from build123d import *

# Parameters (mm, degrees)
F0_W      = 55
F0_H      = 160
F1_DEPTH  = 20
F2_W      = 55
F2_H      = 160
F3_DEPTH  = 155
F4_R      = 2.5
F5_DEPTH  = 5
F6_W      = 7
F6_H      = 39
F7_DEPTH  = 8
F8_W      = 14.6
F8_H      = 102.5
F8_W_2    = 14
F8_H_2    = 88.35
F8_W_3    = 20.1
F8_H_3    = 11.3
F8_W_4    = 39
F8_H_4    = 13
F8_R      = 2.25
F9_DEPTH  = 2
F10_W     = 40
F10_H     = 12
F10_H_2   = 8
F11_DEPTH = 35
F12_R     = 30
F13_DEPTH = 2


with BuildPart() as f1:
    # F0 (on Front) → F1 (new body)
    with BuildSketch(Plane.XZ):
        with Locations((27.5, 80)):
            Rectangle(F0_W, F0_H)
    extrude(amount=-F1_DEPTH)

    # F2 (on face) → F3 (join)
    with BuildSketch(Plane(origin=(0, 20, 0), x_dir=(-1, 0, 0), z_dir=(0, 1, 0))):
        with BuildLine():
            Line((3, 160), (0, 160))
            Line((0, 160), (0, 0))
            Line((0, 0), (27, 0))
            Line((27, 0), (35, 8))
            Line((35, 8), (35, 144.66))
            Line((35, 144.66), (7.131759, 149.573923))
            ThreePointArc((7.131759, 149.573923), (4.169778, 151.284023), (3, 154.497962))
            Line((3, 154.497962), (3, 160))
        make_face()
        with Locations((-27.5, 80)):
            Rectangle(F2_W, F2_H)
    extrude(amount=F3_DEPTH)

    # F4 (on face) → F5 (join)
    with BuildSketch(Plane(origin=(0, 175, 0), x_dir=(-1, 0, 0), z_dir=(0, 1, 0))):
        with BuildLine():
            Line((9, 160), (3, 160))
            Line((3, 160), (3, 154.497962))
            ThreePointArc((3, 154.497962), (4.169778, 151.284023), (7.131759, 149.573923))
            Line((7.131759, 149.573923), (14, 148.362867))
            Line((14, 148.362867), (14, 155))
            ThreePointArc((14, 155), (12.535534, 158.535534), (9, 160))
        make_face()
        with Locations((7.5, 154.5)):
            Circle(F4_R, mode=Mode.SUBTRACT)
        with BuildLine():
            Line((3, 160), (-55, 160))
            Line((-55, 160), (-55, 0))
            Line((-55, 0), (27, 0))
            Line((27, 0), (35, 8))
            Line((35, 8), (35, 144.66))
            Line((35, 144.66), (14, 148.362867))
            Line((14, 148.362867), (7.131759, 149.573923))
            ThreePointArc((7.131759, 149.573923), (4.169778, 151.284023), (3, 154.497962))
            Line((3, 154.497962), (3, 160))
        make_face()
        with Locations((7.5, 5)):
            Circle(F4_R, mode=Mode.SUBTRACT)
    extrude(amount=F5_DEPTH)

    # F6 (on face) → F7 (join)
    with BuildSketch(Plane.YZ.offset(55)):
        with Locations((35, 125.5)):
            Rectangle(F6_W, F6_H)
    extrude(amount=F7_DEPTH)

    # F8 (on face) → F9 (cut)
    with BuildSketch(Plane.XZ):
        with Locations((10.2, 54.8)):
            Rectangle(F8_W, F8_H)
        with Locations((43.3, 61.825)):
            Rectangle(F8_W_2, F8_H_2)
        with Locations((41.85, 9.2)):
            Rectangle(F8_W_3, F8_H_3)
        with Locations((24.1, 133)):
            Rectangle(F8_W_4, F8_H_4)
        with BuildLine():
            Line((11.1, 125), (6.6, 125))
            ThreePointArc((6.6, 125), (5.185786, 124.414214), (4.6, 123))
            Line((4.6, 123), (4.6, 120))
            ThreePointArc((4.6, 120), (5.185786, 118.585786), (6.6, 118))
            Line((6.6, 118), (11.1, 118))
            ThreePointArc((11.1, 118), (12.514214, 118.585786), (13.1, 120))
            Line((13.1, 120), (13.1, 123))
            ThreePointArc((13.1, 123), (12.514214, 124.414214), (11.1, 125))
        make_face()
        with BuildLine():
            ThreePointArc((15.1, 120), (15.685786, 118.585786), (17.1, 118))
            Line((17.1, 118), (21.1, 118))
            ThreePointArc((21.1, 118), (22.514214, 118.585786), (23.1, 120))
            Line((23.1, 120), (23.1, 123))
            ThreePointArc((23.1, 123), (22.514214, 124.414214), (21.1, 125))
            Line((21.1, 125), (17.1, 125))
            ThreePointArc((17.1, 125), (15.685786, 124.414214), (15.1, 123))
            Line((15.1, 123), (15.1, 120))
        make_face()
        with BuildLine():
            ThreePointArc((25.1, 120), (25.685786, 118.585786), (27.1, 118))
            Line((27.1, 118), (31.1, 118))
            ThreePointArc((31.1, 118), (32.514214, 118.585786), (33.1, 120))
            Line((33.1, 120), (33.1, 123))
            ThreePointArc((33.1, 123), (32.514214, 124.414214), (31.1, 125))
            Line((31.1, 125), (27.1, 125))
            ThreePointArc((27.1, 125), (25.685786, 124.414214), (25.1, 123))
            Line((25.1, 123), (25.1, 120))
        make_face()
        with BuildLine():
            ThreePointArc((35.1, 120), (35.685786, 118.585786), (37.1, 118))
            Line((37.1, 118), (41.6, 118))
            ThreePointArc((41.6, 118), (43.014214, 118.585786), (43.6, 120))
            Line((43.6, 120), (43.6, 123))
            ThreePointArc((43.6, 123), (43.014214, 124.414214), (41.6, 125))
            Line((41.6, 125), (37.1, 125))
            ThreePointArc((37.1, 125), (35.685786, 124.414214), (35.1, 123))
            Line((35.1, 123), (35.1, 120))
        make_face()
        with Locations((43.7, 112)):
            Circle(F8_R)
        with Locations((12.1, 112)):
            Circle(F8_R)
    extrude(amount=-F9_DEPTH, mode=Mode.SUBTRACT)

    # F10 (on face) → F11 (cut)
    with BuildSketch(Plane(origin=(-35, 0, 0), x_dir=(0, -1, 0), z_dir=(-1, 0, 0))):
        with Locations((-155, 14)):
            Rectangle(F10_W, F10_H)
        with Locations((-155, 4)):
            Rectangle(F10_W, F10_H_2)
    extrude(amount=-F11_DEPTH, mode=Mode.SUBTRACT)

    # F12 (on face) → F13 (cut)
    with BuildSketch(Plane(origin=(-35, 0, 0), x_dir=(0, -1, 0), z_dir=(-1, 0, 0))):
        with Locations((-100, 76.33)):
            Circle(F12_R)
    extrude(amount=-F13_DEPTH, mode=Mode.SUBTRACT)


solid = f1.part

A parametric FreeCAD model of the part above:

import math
import FreeCAD as App
import Part
import Sketcher
Q = App.Units.Quantity

doc = App.newDocument("Part")
body = doc.addObject("PartDesign::Body", "Body")

sketch1 = body.newObject("Sketcher::SketchObject", "Sketch")
sketch1.AttachmentSupport = (doc.getObject("XZ_Plane"), [""])
sketch1.MapMode = "FlatFace"
sketch1.addGeometry(Part.LineSegment(App.Vector(0, 160, 0), App.Vector(0, 0, 0)), False)
sketch1.addGeometry(Part.LineSegment(App.Vector(0, 0, 0), App.Vector(55, 0, 0)), False)
sketch1.addGeometry(Part.LineSegment(App.Vector(55, 0, 0), App.Vector(55, 160, 0)), False)
sketch1.addGeometry(Part.LineSegment(App.Vector(55, 160, 0), App.Vector(0, 160, 0)), False)
sketch1.addConstraint(Sketcher.Constraint("Coincident", 0, 2, 1, 1))
sketch1.addConstraint(Sketcher.Constraint("Coincident", 1, 2, 2, 1))
sketch1.addConstraint(Sketcher.Constraint("Coincident", 2, 2, 3, 1))
sketch1.addConstraint(Sketcher.Constraint("Coincident", 3, 2, 0, 1))
sketch1.addConstraint(Sketcher.Constraint("Vertical", 0))
sketch1.addConstraint(Sketcher.Constraint("Horizontal", 1))
sketch1.addConstraint(Sketcher.Constraint("Vertical", 2))
sketch1.addConstraint(Sketcher.Constraint("Horizontal", 3))
sketch1.addConstraint(Sketcher.Constraint("Coincident", 0, 2, -1, 1))
sketch1.addConstraint(Sketcher.Constraint("DistanceX", 1, 1, 1, 2, Q("55 mm")))
sketch1.addConstraint(Sketcher.Constraint("DistanceY", 0, 2, 0, 1, Q("160 mm")))
pad1 = body.newObject("PartDesign::Pad", "Pad")
pad1.Profile = sketch1
pad1.Length = 20
pad1.Reversed = True

sketch2 = body.newObject("Sketcher::SketchObject", "Sketch001")
sketch2.AttachmentSupport = (doc.getObject("XZ_Plane"), [""])
sketch2.MapMode = "FlatFace"
sketch2.AttachmentOffset = App.Placement(App.Vector(0, 0, -20), App.Rotation())
sketch2.addGeometry(Part.LineSegment(App.Vector(-3, 160, 0), App.Vector(55, 160, 0)), False)
sketch2.addGeometry(Part.LineSegment(App.Vector(55, 160, 0), App.Vector(55, 0, 0)), False)
sketch2.addGeometry(Part.LineSegment(App.Vector(55, 0, 0), App.Vector(-27, 0, 0)), False)
sketch2.addGeometry(Part.LineSegment(App.Vector(-27, 0, 0), App.Vector(-35, 8, 0)), False)
sketch2.addGeometry(Part.LineSegment(App.Vector(-35, 8, 0), App.Vector(-35, 144.7, 0)), False)
sketch2.addGeometry(Part.LineSegment(App.Vector(-35, 144.7, 0), App.Vector(-7.1, 149.6, 0)), False)
sketch2.addGeometry(Part.ArcOfCircle(Part.Circle(App.Vector(-8, 154.5, 0), App.Vector(0, 0, 1), 5), math.radians(-80), math.radians(0)), False)
sketch2.addGeometry(Part.LineSegment(App.Vector(-3, 154.5, 0), App.Vector(-3, 160, 0)), False)
sketch2.addConstraint(Sketcher.Constraint("Coincident", 0, 2, 1, 1))
sketch2.addConstraint(Sketcher.Constraint("Coincident", 1, 2, 2, 1))
sketch2.addConstraint(Sketcher.Constraint("Coincident", 2, 2, 3, 1))
sketch2.addConstraint(Sketcher.Constraint("Coincident", 3, 2, 4, 1))
sketch2.addConstraint(Sketcher.Constraint("Coincident", 4, 2, 5, 1))
sketch2.addConstraint(Sketcher.Constraint("Tangent", 5, 2, 6, 1))
sketch2.addConstraint(Sketcher.Constraint("Tangent", 6, 2, 7, 1))
sketch2.addConstraint(Sketcher.Constraint("Coincident", 7, 2, 0, 1))
sketch2.addConstraint(Sketcher.Constraint("Horizontal", 0))
sketch2.addConstraint(Sketcher.Constraint("Vertical", 1))
sketch2.addConstraint(Sketcher.Constraint("Horizontal", 2))
sketch2.addConstraint(Sketcher.Constraint("Vertical", 4))
sketch2.addConstraint(Sketcher.Constraint("Vertical", 7))
sketch2.addConstraint(Sketcher.Constraint("PointOnObject", 1, 2, -1))
sketch2.addConstraint(Sketcher.Constraint("Radius", 6, Q("4.999999 mm")))
sketch2.addConstraint(Sketcher.Constraint("DistanceX", 0, 1, 0, 2, Q("58 mm")))
sketch2.addConstraint(Sketcher.Constraint("DistanceX", 2, 2, 2, 1, Q("82 mm")))
sketch2.addConstraint(Sketcher.Constraint("DistanceY", 1, 2, 1, 1, Q("160 mm")))
sketch2.addConstraint(Sketcher.Constraint("Angle", 3, Q("135 deg")))
sketch2.addConstraint(Sketcher.Constraint("Angle", 5, Q("10 deg")))
sketch2.addConstraint(Sketcher.Constraint("DistanceX", 6, 3, -1, 1, Q("7.999999 mm")))
sketch2.addConstraint(Sketcher.Constraint("DistanceX", 3, 2, -1, 1, Q("35 mm")))
sketch2.addConstraint(Sketcher.Constraint("DistanceY", 4, 1, 4, 2, Q("136.66 mm")))
pad2 = body.newObject("PartDesign::Pad", "Pad001")
pad2.Profile = sketch2
pad2.Length = 155
pad2.Reversed = True

sketch3 = body.newObject("Sketcher::SketchObject", "Sketch002")
sketch3.AttachmentSupport = (doc.getObject("XZ_Plane"), [""])
sketch3.MapMode = "FlatFace"
sketch3.AttachmentOffset = App.Placement(App.Vector(0, 0, -175), App.Rotation())
sketch3.addGeometry(Part.LineSegment(App.Vector(-9, 160, 0), App.Vector(55, 160, 0)), False)
sketch3.addGeometry(Part.LineSegment(App.Vector(55, 160, 0), App.Vector(55, 0, 0)), False)
sketch3.addGeometry(Part.LineSegment(App.Vector(55, 0, 0), App.Vector(-27, 0, 0)), False)
sketch3.addGeometry(Part.LineSegment(App.Vector(-27, 0, 0), App.Vector(-35, 8, 0)), False)
sketch3.addGeometry(Part.LineSegment(App.Vector(-35, 8, 0), App.Vector(-35, 144.7, 0)), False)
sketch3.addGeometry(Part.LineSegment(App.Vector(-35, 144.7, 0), App.Vector(-14, 148.4, 0)), False)
sketch3.addGeometry(Part.LineSegment(App.Vector(-14, 148.4, 0), App.Vector(-14, 155, 0)), False)
sketch3.addGeometry(Part.ArcOfCircle(Part.Circle(App.Vector(-9, 155, 0), App.Vector(0, 0, 1), 5), math.radians(90), math.radians(180)), False)
sketch3.addGeometry(Part.Circle(App.Vector(-7.5, 5, 0), App.Vector(0, 0, 1), 2.5), False)
sketch3.addGeometry(Part.Circle(App.Vector(-7.5, 154.5, 0), App.Vector(0, 0, 1), 2.5), False)
sketch3.addConstraint(Sketcher.Constraint("Coincident", 0, 2, 1, 1))
sketch3.addConstraint(Sketcher.Constraint("Coincident", 1, 2, 2, 1))
sketch3.addConstraint(Sketcher.Constraint("Coincident", 2, 2, 3, 1))
sketch3.addConstraint(Sketcher.Constraint("Coincident", 3, 2, 4, 1))
sketch3.addConstraint(Sketcher.Constraint("Coincident", 4, 2, 5, 1))
sketch3.addConstraint(Sketcher.Constraint("Coincident", 5, 2, 6, 1))
sketch3.addConstraint(Sketcher.Constraint("Tangent", 6, 2, 7, 2))
sketch3.addConstraint(Sketcher.Constraint("Tangent", 7, 1, 0, 1))
sketch3.addConstraint(Sketcher.Constraint("Horizontal", 0))
sketch3.addConstraint(Sketcher.Constraint("Vertical", 1))
sketch3.addConstraint(Sketcher.Constraint("Horizontal", 2))
sketch3.addConstraint(Sketcher.Constraint("Vertical", 4))
sketch3.addConstraint(Sketcher.Constraint("Vertical", 6))
sketch3.addConstraint(Sketcher.Constraint("Equal", 8, 9))
sketch3.addConstraint(Sketcher.Constraint("PointOnObject", 1, 2, -1))
sketch3.addConstraint(Sketcher.Constraint("Vertical", 8, 3, 9, 3))
sketch3.addConstraint(Sketcher.Constraint("Diameter", 8, Q("5 mm")))
sketch3.addConstraint(Sketcher.Constraint("Radius", 7, Q("5 mm")))
sketch3.addConstraint(Sketcher.Constraint("DistanceX", 0, 1, 0, 2, Q("64 mm")))
sketch3.addConstraint(Sketcher.Constraint("DistanceX", 2, 2, 2, 1, Q("82 mm")))
sketch3.addConstraint(Sketcher.Constraint("DistanceY", 1, 2, 1, 1, Q("160 mm")))
sketch3.addConstraint(Sketcher.Constraint("Angle", 3, Q("135 deg")))
sketch3.addConstraint(Sketcher.Constraint("Angle", 5, Q("10.000001 deg")))
sketch3.addConstraint(Sketcher.Constraint("DistanceX", 7, 3, -1, 1, Q("9 mm")))
sketch3.addConstraint(Sketcher.Constraint("DistanceY", -1, 1, 8, 3, Q("5 mm")))
sketch3.addConstraint(Sketcher.Constraint("DistanceX", 3, 2, -1, 1, Q("35 mm")))
sketch3.addConstraint(Sketcher.Constraint("DistanceY", 4, 1, 4, 2, Q("136.66 mm")))
sketch3.addConstraint(Sketcher.Constraint("DistanceX", 8, 3, -1, 1, Q("7.5 mm")))
sketch3.addConstraint(Sketcher.Constraint("DistanceY", -1, 1, 9, 3, Q("154.5 mm")))
pad3 = body.newObject("PartDesign::Pad", "Pad002")
pad3.Profile = sketch3
pad3.Length = 5
pad3.Reversed = True

sketch4 = body.newObject("Sketcher::SketchObject", "Sketch003")
sketch4.AttachmentSupport = (doc.getObject("YZ_Plane"), [""])
sketch4.MapMode = "FlatFace"
sketch4.AttachmentOffset = App.Placement(App.Vector(0, 0, 55), App.Rotation())
sketch4.addGeometry(Part.LineSegment(App.Vector(32, 145, 0), App.Vector(32, 106, 0)), False)
sketch4.addGeometry(Part.LineSegment(App.Vector(32, 106, 0), App.Vector(38, 106, 0)), False)
sketch4.addGeometry(Part.LineSegment(App.Vector(38, 106, 0), App.Vector(38, 145, 0)), False)
sketch4.addGeometry(Part.LineSegment(App.Vector(38, 145, 0), App.Vector(32, 145, 0)), False)
sketch4.addConstraint(Sketcher.Constraint("Coincident", 0, 2, 1, 1))
sketch4.addConstraint(Sketcher.Constraint("Coincident", 1, 2, 2, 1))
sketch4.addConstraint(Sketcher.Constraint("Coincident", 2, 2, 3, 1))
sketch4.addConstraint(Sketcher.Constraint("Coincident", 3, 2, 0, 1))
sketch4.addConstraint(Sketcher.Constraint("Vertical", 0))
sketch4.addConstraint(Sketcher.Constraint("Horizontal", 1))
sketch4.addConstraint(Sketcher.Constraint("Vertical", 2))
sketch4.addConstraint(Sketcher.Constraint("Horizontal", 3))
sketch4.addConstraint(Sketcher.Constraint("DistanceX", 1, 1, 1, 2, Q("7 mm")))
sketch4.addConstraint(Sketcher.Constraint("DistanceY", 0, 2, 0, 1, Q("39 mm")))
sketch4.addConstraint(Sketcher.Constraint("DistanceY", -1, 1, 0, 2, Q("106 mm")))
sketch4.addConstraint(Sketcher.Constraint("DistanceX", -1, 1, 0, 2, Q("31.5 mm")))
pad4 = body.newObject("PartDesign::Pad", "Pad003")
pad4.Profile = sketch4
pad4.Length = 8

sketch5 = body.newObject("Sketcher::SketchObject", "Sketch004")
sketch5.AttachmentSupport = (doc.getObject("XZ_Plane"), [""])
sketch5.MapMode = "FlatFace"
sketch5.addGeometry(Part.LineSegment(App.Vector(2.9, 106, 0), App.Vector(2.9, 3.5, 0)), False)
sketch5.addGeometry(Part.LineSegment(App.Vector(2.9, 3.5, 0), App.Vector(17.5, 3.5, 0)), False)
sketch5.addGeometry(Part.LineSegment(App.Vector(17.5, 3.5, 0), App.Vector(17.5, 106, 0)), False)
sketch5.addGeometry(Part.LineSegment(App.Vector(17.5, 106, 0), App.Vector(2.9, 106, 0)), False)
sketch5.addGeometry(Part.LineSegment(App.Vector(36.3, 106, 0), App.Vector(36.3, 17.6, 0)), False)
sketch5.addGeometry(Part.LineSegment(App.Vector(36.3, 17.6, 0), App.Vector(50.3, 17.6, 0)), False)
sketch5.addGeometry(Part.LineSegment(App.Vector(50.3, 17.6, 0), App.Vector(50.3, 106, 0)), False)
sketch5.addGeometry(Part.LineSegment(App.Vector(50.3, 106, 0), App.Vector(36.3, 106, 0)), False)
sketch5.addGeometry(Part.LineSegment(App.Vector(31.8, 14.8, 0), App.Vector(31.8, 3.5, 0)), False)
sketch5.addGeometry(Part.LineSegment(App.Vector(31.8, 3.5, 0), App.Vector(51.9, 3.5, 0)), False)
sketch5.addGeometry(Part.LineSegment(App.Vector(51.9, 3.5, 0), App.Vector(51.9, 14.8, 0)), False)
sketch5.addGeometry(Part.LineSegment(App.Vector(51.9, 14.8, 0), App.Vector(31.8, 14.8, 0)), False)
sketch5.addGeometry(Part.LineSegment(App.Vector(4.6, 139.5, 0), App.Vector(4.6, 126.5, 0)), False)
sketch5.addGeometry(Part.LineSegment(App.Vector(4.6, 126.5, 0), App.Vector(43.6, 126.5, 0)), False)
sketch5.addGeometry(Part.LineSegment(App.Vector(43.6, 126.5, 0), App.Vector(43.6, 139.5, 0)), False)
sketch5.addGeometry(Part.LineSegment(App.Vector(43.6, 139.5, 0), App.Vector(4.6, 139.5, 0)), False)
sketch5.addGeometry(Part.LineSegment(App.Vector(11.1, 125, 0), App.Vector(6.6, 125, 0)), False)
sketch5.addGeometry(Part.ArcOfCircle(Part.Circle(App.Vector(6.6, 123, 0), App.Vector(0, 0, 1), 2), math.radians(90), math.radians(180)), False)
sketch5.addGeometry(Part.LineSegment(App.Vector(4.6, 123, 0), App.Vector(4.6, 120, 0)), False)
sketch5.addGeometry(Part.ArcOfCircle(Part.Circle(App.Vector(6.6, 120, 0), App.Vector(0, 0, 1), 2), math.radians(180), math.radians(270)), False)
sketch5.addGeometry(Part.LineSegment(App.Vector(6.6, 118, 0), App.Vector(11.1, 118, 0)), False)
sketch5.addGeometry(Part.ArcOfCircle(Part.Circle(App.Vector(11.1, 120, 0), App.Vector(0, 0, 1), 2), math.radians(-90), math.radians(0)), False)
sketch5.addGeometry(Part.LineSegment(App.Vector(13.1, 120, 0), App.Vector(13.1, 123, 0)), False)
sketch5.addGeometry(Part.ArcOfCircle(Part.Circle(App.Vector(11.1, 123, 0), App.Vector(0, 0, 1), 2), math.radians(0), math.radians(90)), False)
sketch5.addGeometry(Part.ArcOfCircle(Part.Circle(App.Vector(17.1, 120, 0), App.Vector(0, 0, 1), 2), math.radians(180), math.radians(270)), False)
sketch5.addGeometry(Part.LineSegment(App.Vector(17.1, 118, 0), App.Vector(21.1, 118, 0)), False)
sketch5.addGeometry(Part.ArcOfCircle(Part.Circle(App.Vector(21.1, 120, 0), App.Vector(0, 0, 1), 2), math.radians(-90), math.radians(0)), False)
sketch5.addGeometry(Part.LineSegment(App.Vector(23.1, 120, 0), App.Vector(23.1, 123, 0)), False)
sketch5.addGeometry(Part.ArcOfCircle(Part.Circle(App.Vector(21.1, 123, 0), App.Vector(0, 0, 1), 2), math.radians(0), math.radians(90)), False)
sketch5.addGeometry(Part.LineSegment(App.Vector(21.1, 125, 0), App.Vector(17.1, 125, 0)), False)
sketch5.addGeometry(Part.ArcOfCircle(Part.Circle(App.Vector(17.1, 123, 0), App.Vector(0, 0, 1), 2), math.radians(90), math.radians(180)), False)
sketch5.addGeometry(Part.LineSegment(App.Vector(15.1, 123, 0), App.Vector(15.1, 120, 0)), False)
sketch5.addGeometry(Part.ArcOfCircle(Part.Circle(App.Vector(27.1, 120, 0), App.Vector(0, 0, 1), 2), math.radians(180), math.radians(270)), False)
sketch5.addGeometry(Part.LineSegment(App.Vector(27.1, 118, 0), App.Vector(31.1, 118, 0)), False)
sketch5.addGeometry(Part.ArcOfCircle(Part.Circle(App.Vector(31.1, 120, 0), App.Vector(0, 0, 1), 2), math.radians(-90), math.radians(0)), False)
sketch5.addGeometry(Part.LineSegment(App.Vector(33.1, 120, 0), App.Vector(33.1, 123, 0)), False)
sketch5.addGeometry(Part.ArcOfCircle(Part.Circle(App.Vector(31.1, 123, 0), App.Vector(0, 0, 1), 2), math.radians(0), math.radians(90)), False)
sketch5.addGeometry(Part.LineSegment(App.Vector(31.1, 125, 0), App.Vector(27.1, 125, 0)), False)
sketch5.addGeometry(Part.ArcOfCircle(Part.Circle(App.Vector(27.1, 123, 0), App.Vector(0, 0, 1), 2), math.radians(90), math.radians(180)), False)
sketch5.addGeometry(Part.LineSegment(App.Vector(25.1, 123, 0), App.Vector(25.1, 120, 0)), False)
sketch5.addGeometry(Part.ArcOfCircle(Part.Circle(App.Vector(37.1, 120, 0), App.Vector(0, 0, 1), 2), math.radians(180), math.radians(270)), False)
sketch5.addGeometry(Part.LineSegment(App.Vector(37.1, 118, 0), App.Vector(41.6, 118, 0)), False)
sketch5.addGeometry(Part.ArcOfCircle(Part.Circle(App.Vector(41.6, 120, 0), App.Vector(0, 0, 1), 2), math.radians(-90), math.radians(0)), False)
sketch5.addGeometry(Part.LineSegment(App.Vector(43.6, 120, 0), App.Vector(43.6, 123, 0)), False)
sketch5.addGeometry(Part.ArcOfCircle(Part.Circle(App.Vector(41.6, 123, 0), App.Vector(0, 0, 1), 2), math.radians(0), math.radians(90)), False)
sketch5.addGeometry(Part.LineSegment(App.Vector(41.6, 125, 0), App.Vector(37.1, 125, 0)), False)
sketch5.addGeometry(Part.ArcOfCircle(Part.Circle(App.Vector(37.1, 123, 0), App.Vector(0, 0, 1), 2), math.radians(90), math.radians(180)), False)
sketch5.addGeometry(Part.LineSegment(App.Vector(35.1, 123, 0), App.Vector(35.1, 120, 0)), False)
sketch5.addGeometry(Part.Circle(App.Vector(43.7, 112, 0), App.Vector(0, 0, 1), 2.2), False)
sketch5.addGeometry(Part.Circle(App.Vector(12.1, 112, 0), App.Vector(0, 0, 1), 2.2), False)
sketch5.addConstraint(Sketcher.Constraint("Coincident", 0, 2, 1, 1))
sketch5.addConstraint(Sketcher.Constraint("Coincident", 1, 2, 2, 1))
sketch5.addConstraint(Sketcher.Constraint("Coincident", 2, 2, 3, 1))
sketch5.addConstraint(Sketcher.Constraint("Coincident", 3, 2, 0, 1))
sketch5.addConstraint(Sketcher.Constraint("Coincident", 4, 2, 5, 1))
sketch5.addConstraint(Sketcher.Constraint("Coincident", 5, 2, 6, 1))
sketch5.addConstraint(Sketcher.Constraint("Coincident", 6, 2, 7, 1))
sketch5.addConstraint(Sketcher.Constraint("Coincident", 7, 2, 4, 1))
sketch5.addConstraint(Sketcher.Constraint("Coincident", 8, 2, 9, 1))
sketch5.addConstraint(Sketcher.Constraint("Coincident", 9, 2, 10, 1))
sketch5.addConstraint(Sketcher.Constraint("Coincident", 10, 2, 11, 1))
sketch5.addConstraint(Sketcher.Constraint("Coincident", 11, 2, 8, 1))
sketch5.addConstraint(Sketcher.Constraint("Coincident", 12, 2, 13, 1))
sketch5.addConstraint(Sketcher.Constraint("Coincident", 13, 2, 14, 1))
sketch5.addConstraint(Sketcher.Constraint("Coincident", 14, 2, 15, 1))
sketch5.addConstraint(Sketcher.Constraint("Coincident", 15, 2, 12, 1))
sketch5.addConstraint(Sketcher.Constraint("Tangent", 16, 2, 17, 1))
sketch5.addConstraint(Sketcher.Constraint("Tangent", 17, 2, 18, 1))
sketch5.addConstraint(Sketcher.Constraint("Tangent", 18, 2, 19, 1))
sketch5.addConstraint(Sketcher.Constraint("Tangent", 19, 2, 20, 1))
sketch5.addConstraint(Sketcher.Constraint("Tangent", 20, 2, 21, 1))
sketch5.addConstraint(Sketcher.Constraint("Tangent", 21, 2, 22, 1))
sketch5.addConstraint(Sketcher.Constraint("Tangent", 22, 2, 23, 1))
sketch5.addConstraint(Sketcher.Constraint("Tangent", 23, 2, 16, 1))
sketch5.addConstraint(Sketcher.Constraint("Tangent", 24, 2, 25, 1))
sketch5.addConstraint(Sketcher.Constraint("Tangent", 25, 2, 26, 1))
sketch5.addConstraint(Sketcher.Constraint("Tangent", 26, 2, 27, 1))
sketch5.addConstraint(Sketcher.Constraint("Tangent", 27, 2, 28, 1))
sketch5.addConstraint(Sketcher.Constraint("Tangent", 28, 2, 29, 1))
sketch5.addConstraint(Sketcher.Constraint("Tangent", 29, 2, 30, 1))
sketch5.addConstraint(Sketcher.Constraint("Tangent", 30, 2, 31, 1))
sketch5.addConstraint(Sketcher.Constraint("Tangent", 31, 2, 24, 1))
sketch5.addConstraint(Sketcher.Constraint("Tangent", 32, 2, 33, 1))
sketch5.addConstraint(Sketcher.Constraint("Tangent", 33, 2, 34, 1))
sketch5.addConstraint(Sketcher.Constraint("Tangent", 34, 2, 35, 1))
sketch5.addConstraint(Sketcher.Constraint("Tangent", 35, 2, 36, 1))
sketch5.addConstraint(Sketcher.Constraint("Tangent", 36, 2, 37, 1))
sketch5.addConstraint(Sketcher.Constraint("Tangent", 37, 2, 38, 1))
sketch5.addConstraint(Sketcher.Constraint("Tangent", 38, 2, 39, 1))
sketch5.addConstraint(Sketcher.Constraint("Tangent", 39, 2, 32, 1))
sketch5.addConstraint(Sketcher.Constraint("Tangent", 40, 2, 41, 1))
sketch5.addConstraint(Sketcher.Constraint("Tangent", 41, 2, 42, 1))
sketch5.addConstraint(Sketcher.Constraint("Tangent", 42, 2, 43, 1))
sketch5.addConstraint(Sketcher.Constraint("Tangent", 43, 2, 44, 1))
sketch5.addConstraint(Sketcher.Constraint("Tangent", 44, 2, 45, 1))
sketch5.addConstraint(Sketcher.Constraint("Tangent", 45, 2, 46, 1))
sketch5.addConstraint(Sketcher.Constraint("Tangent", 46, 2, 47, 1))
sketch5.addConstraint(Sketcher.Constraint("Tangent", 47, 2, 40, 1))
sketch5.addConstraint(Sketcher.Constraint("Vertical", 0))
sketch5.addConstraint(Sketcher.Constraint("Horizontal", 1))
sketch5.addConstraint(Sketcher.Constraint("Vertical", 2))
sketch5.addConstraint(Sketcher.Constraint("Horizontal", 3))
sketch5.addConstraint(Sketcher.Constraint("Vertical", 4))
sketch5.addConstraint(Sketcher.Constraint("Horizontal", 5))
sketch5.addConstraint(Sketcher.Constraint("Vertical", 6))
sketch5.addConstraint(Sketcher.Constraint("Horizontal", 7))
sketch5.addConstraint(Sketcher.Constraint("Vertical", 8))
sketch5.addConstraint(Sketcher.Constraint("Horizontal", 9))
sketch5.addConstraint(Sketcher.Constraint("Vertical", 10))
sketch5.addConstraint(Sketcher.Constraint("Horizontal", 11))
sketch5.addConstraint(Sketcher.Constraint("Vertical", 12))
sketch5.addConstraint(Sketcher.Constraint("Horizontal", 13))
sketch5.addConstraint(Sketcher.Constraint("Vertical", 14))
sketch5.addConstraint(Sketcher.Constraint("Horizontal", 15))
sketch5.addConstraint(Sketcher.Constraint("Horizontal", 16))
sketch5.addConstraint(Sketcher.Constraint("Vertical", 18))
sketch5.addConstraint(Sketcher.Constraint("Horizontal", 20))
sketch5.addConstraint(Sketcher.Constraint("Vertical", 22))
sketch5.addConstraint(Sketcher.Constraint("Horizontal", 25))
sketch5.addConstraint(Sketcher.Constraint("Vertical", 27))
sketch5.addConstraint(Sketcher.Constraint("Horizontal", 29))
sketch5.addConstraint(Sketcher.Constraint("Vertical", 31))
sketch5.addConstraint(Sketcher.Constraint("Horizontal", 33))
sketch5.addConstraint(Sketcher.Constraint("Vertical", 35))
sketch5.addConstraint(Sketcher.Constraint("Horizontal", 37))
sketch5.addConstraint(Sketcher.Constraint("Vertical", 39))
sketch5.addConstraint(Sketcher.Constraint("Horizontal", 41))
sketch5.addConstraint(Sketcher.Constraint("Vertical", 43))
sketch5.addConstraint(Sketcher.Constraint("Horizontal", 45))
sketch5.addConstraint(Sketcher.Constraint("Vertical", 47))
sketch5.addConstraint(Sketcher.Constraint("Equal", 17, 19))
sketch5.addConstraint(Sketcher.Constraint("Equal", 19, 21))
sketch5.addConstraint(Sketcher.Constraint("Equal", 21, 23))
sketch5.addConstraint(Sketcher.Constraint("Equal", 23, 24))
sketch5.addConstraint(Sketcher.Constraint("Equal", 24, 26))
sketch5.addConstraint(Sketcher.Constraint("Equal", 26, 28))
sketch5.addConstraint(Sketcher.Constraint("Equal", 28, 30))
sketch5.addConstraint(Sketcher.Constraint("Equal", 30, 32))
sketch5.addConstraint(Sketcher.Constraint("Equal", 32, 34))
sketch5.addConstraint(Sketcher.Constraint("Equal", 34, 36))
sketch5.addConstraint(Sketcher.Constraint("Equal", 36, 38))
sketch5.addConstraint(Sketcher.Constraint("Equal", 38, 40))
sketch5.addConstraint(Sketcher.Constraint("Equal", 40, 42))
sketch5.addConstraint(Sketcher.Constraint("Equal", 42, 44))
sketch5.addConstraint(Sketcher.Constraint("Equal", 44, 46))
sketch5.addConstraint(Sketcher.Constraint("Equal", 48, 49))
sketch5.addConstraint(Sketcher.Constraint("Horizontal", 21, 3, 24, 3))
sketch5.addConstraint(Sketcher.Constraint("Horizontal", 23, 3, 28, 3))
sketch5.addConstraint(Sketcher.Constraint("Horizontal", 26, 3, 32, 3))
sketch5.addConstraint(Sketcher.Constraint("Horizontal", 30, 3, 36, 3))
sketch5.addConstraint(Sketcher.Constraint("Horizontal", 34, 3, 40, 3))
sketch5.addConstraint(Sketcher.Constraint("Horizontal", 38, 3, 44, 3))
sketch5.addConstraint(Sketcher.Constraint("Horizontal", 48, 3, 49, 3))
sketch5.addConstraint(Sketcher.Constraint("Horizontal", 1, 2, 8, 2))
sketch5.addConstraint(Sketcher.Constraint("Vertical", 15, 2, 17, 2))
sketch5.addConstraint(Sketcher.Constraint("Vertical", 14, 2, 42, 2))
sketch5.addConstraint(Sketcher.Constraint("Equal", 29, 33))
sketch5.addConstraint(Sketcher.Constraint("Equal", 20, 41))
sketch5.addConstraint(Sketcher.Constraint("Radius", 17, Q("1.999999 mm")))
sketch5.addConstraint(Sketcher.Constraint("Diameter", 48, Q("4.5 mm")))
sketch5.addConstraint(Sketcher.Constraint("DistanceX", 5, 1, 5, 2, Q("14 mm")))
sketch5.addConstraint(Sketcher.Constraint("DistanceX", 13, 1, 13, 2, Q("39 mm")))
sketch5.addConstraint(Sketcher.Constraint("DistanceX", 25, 1, 25, 2, Q("4 mm")))
sketch5.addConstraint(Sketcher.Constraint("DistanceY", 12, 2, 12, 1, Q("13 mm")))
sketch5.addConstraint(Sketcher.Constraint("DistanceY", 18, 2, 18, 1, Q("3 mm")))
sketch5.addConstraint(Sketcher.Constraint("DistanceX", 1, 1, 1, 2, Q("14.6 mm")))
sketch5.addConstraint(Sketcher.Constraint("DistanceX", 9, 1, 9, 2, Q("20.1 mm")))
sketch5.addConstraint(Sketcher.Constraint("DistanceX", 16, 2, 16, 1, Q("4.5 mm")))
sketch5.addConstraint(Sketcher.Constraint("DistanceY", 0, 2, 0, 1, Q("102.5 mm")))
sketch5.addConstraint(Sketcher.Constraint("DistanceY", 8, 2, 8, 1, Q("11.3 mm")))
sketch5.addConstraint(Sketcher.Constraint("DistanceY", -1, 1, 17, 3, Q("123.000001 mm")))
sketch5.addConstraint(Sketcher.Constraint("DistanceY", -1, 1, 48, 3, Q("112 mm")))
sketch5.addConstraint(Sketcher.Constraint("DistanceY", -1, 1, 6, 2, Q("106 mm")))
sketch5.addConstraint(Sketcher.Constraint("DistanceY", 4, 2, 4, 1, Q("88.35 mm")))
sketch5.addConstraint(Sketcher.Constraint("DistanceX", -1, 1, 17, 3, Q("6.599999 mm")))
sketch5.addConstraint(Sketcher.Constraint("DistanceX", -1, 1, 24, 3, Q("17.099999 mm")))
sketch5.addConstraint(Sketcher.Constraint("DistanceX", -1, 1, 32, 3, Q("27.099999 mm")))
sketch5.addConstraint(Sketcher.Constraint("DistanceX", -1, 1, 48, 3, Q("43.7 mm")))
sketch5.addConstraint(Sketcher.Constraint("DistanceX", -1, 1, 49, 3, Q("12.1 mm")))
sketch5.addConstraint(Sketcher.Constraint("DistanceX", -1, 1, 0, 2, Q("2.9 mm")))
sketch5.addConstraint(Sketcher.Constraint("DistanceX", -1, 1, 4, 2, Q("36.3 mm")))
sketch5.addConstraint(Sketcher.Constraint("DistanceX", -1, 1, 8, 2, Q("31.8 mm")))
sketch5.addConstraint(Sketcher.Constraint("DistanceY", -1, 1, 12, 2, Q("126.5 mm")))
sketch5.addConstraint(Sketcher.Constraint("DistanceY", -1, 1, 0, 2, Q("3.55 mm")))
pocket1 = body.newObject("PartDesign::Pocket", "Pocket")
pocket1.Profile = sketch5
pocket1.Length = 2

sketch6 = body.newObject("Sketcher::SketchObject", "Sketch005")
sketch6.AttachmentSupport = (doc.getObject("YZ_Plane"), [""])
sketch6.MapMode = "FlatFace"
sketch6.AttachmentOffset = App.Placement(App.Vector(0, 0, -35), App.Rotation())
sketch6.addGeometry(Part.LineSegment(App.Vector(175, 20, 0), App.Vector(175, 0, 0)), False)
sketch6.addGeometry(Part.LineSegment(App.Vector(175, 0, 0), App.Vector(135, 0, 0)), False)
sketch6.addGeometry(Part.LineSegment(App.Vector(135, 0, 0), App.Vector(135, 20, 0)), False)
sketch6.addGeometry(Part.LineSegment(App.Vector(135, 20, 0), App.Vector(175, 20, 0)), False)
sketch6.addConstraint(Sketcher.Constraint("Coincident", 0, 2, 1, 1))
sketch6.addConstraint(Sketcher.Constraint("Coincident", 1, 2, 2, 1))
sketch6.addConstraint(Sketcher.Constraint("Coincident", 2, 2, 3, 1))
sketch6.addConstraint(Sketcher.Constraint("Coincident", 3, 2, 0, 1))
sketch6.addConstraint(Sketcher.Constraint("Vertical", 0))
sketch6.addConstraint(Sketcher.Constraint("Horizontal", 1))
sketch6.addConstraint(Sketcher.Constraint("Vertical", 2))
sketch6.addConstraint(Sketcher.Constraint("Horizontal", 3))
sketch6.addConstraint(Sketcher.Constraint("PointOnObject", 0, 2, -1))
sketch6.addConstraint(Sketcher.Constraint("DistanceX", 1, 2, 1, 1, Q("40 mm")))
sketch6.addConstraint(Sketcher.Constraint("DistanceY", 0, 2, 0, 1, Q("20 mm")))
sketch6.addConstraint(Sketcher.Constraint("DistanceX", -1, 1, 0, 2, Q("175 mm")))
pocket2 = body.newObject("PartDesign::Pocket", "Pocket001")
pocket2.Profile = sketch6
pocket2.Length = 35
pocket2.Reversed = True

sketch7 = body.newObject("Sketcher::SketchObject", "Sketch006")
sketch7.AttachmentSupport = (doc.getObject("YZ_Plane"), [""])
sketch7.MapMode = "FlatFace"
sketch7.AttachmentOffset = App.Placement(App.Vector(0, 0, -35), App.Rotation())
sketch7.addGeometry(Part.Circle(App.Vector(100, 76, 0), App.Vector(0, 0, 1), 30), False)
sketch7.addConstraint(Sketcher.Constraint("Diameter", 0, Q("60 mm")))
sketch7.addConstraint(Sketcher.Constraint("DistanceX", -1, 1, 0, 3, Q("100 mm")))
sketch7.addConstraint(Sketcher.Constraint("DistanceY", -1, 1, 0, 3, Q("76.33 mm")))
pocket3 = body.newObject("PartDesign::Pocket", "Pocket002")
pocket3.Profile = sketch7
pocket3.Length = 2
pocket3.Reversed = True

doc.recompute()
